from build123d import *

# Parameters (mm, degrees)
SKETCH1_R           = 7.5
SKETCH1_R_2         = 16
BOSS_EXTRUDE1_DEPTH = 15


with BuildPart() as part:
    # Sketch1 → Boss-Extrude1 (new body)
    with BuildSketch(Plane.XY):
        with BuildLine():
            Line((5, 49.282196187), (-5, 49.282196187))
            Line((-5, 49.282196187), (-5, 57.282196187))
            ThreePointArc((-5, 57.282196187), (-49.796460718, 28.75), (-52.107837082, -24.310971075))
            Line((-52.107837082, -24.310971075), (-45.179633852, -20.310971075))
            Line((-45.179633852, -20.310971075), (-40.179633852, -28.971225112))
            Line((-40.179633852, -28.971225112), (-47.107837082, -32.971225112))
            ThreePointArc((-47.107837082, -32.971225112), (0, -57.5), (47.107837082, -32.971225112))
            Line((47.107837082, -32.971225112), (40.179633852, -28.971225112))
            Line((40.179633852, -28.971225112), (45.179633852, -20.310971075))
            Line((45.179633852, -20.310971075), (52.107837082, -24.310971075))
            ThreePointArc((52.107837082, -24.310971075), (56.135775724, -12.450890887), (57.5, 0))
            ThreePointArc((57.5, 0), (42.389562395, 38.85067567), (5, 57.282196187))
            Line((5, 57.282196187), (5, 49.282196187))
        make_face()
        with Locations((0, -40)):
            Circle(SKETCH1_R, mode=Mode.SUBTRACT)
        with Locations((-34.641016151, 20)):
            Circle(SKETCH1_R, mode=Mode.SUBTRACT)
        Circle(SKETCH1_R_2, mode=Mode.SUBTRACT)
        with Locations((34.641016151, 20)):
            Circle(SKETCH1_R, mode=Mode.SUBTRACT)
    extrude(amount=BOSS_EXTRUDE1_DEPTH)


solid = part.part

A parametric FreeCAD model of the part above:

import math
import FreeCAD as App
import Part
import Sketcher
Q = App.Units.Quantity

doc = App.newDocument("Part")
body = doc.addObject("PartDesign::Body", "Body")

sketch1 = body.newObject("Sketcher::SketchObject", "Sketch")
sketch1.AttachmentSupport = (doc.getObject("XY_Plane"), [""])
sketch1.MapMode = "FlatFace"
sketch1.addGeometry([
    Part.LineSegment(App.Vector(5, 49.282196, 0), App.Vector(-5, 49.282196, 0)),
    Part.LineSegment(App.Vector(-5, 49.282196, 0), App.Vector(-5, 57.282196, 0)),
    Part.ArcOfCircle(Part.Circle(App.Vector(0, 0, 0), App.Vector(0, 0, 1), 57.5), math.radians(94.988542), math.radians(205.011458)),
    Part.LineSegment(App.Vector(-52.107837, -24.310971, 0), App.Vector(-45.179634, -20.310971, 0)),
    Part.LineSegment(App.Vector(-45.179634, -20.310971, 0), App.Vector(-40.179634, -28.971225, 0)),
    Part.LineSegment(App.Vector(-40.179634, -28.971225, 0), App.Vector(-47.107837, -32.971225, 0)),
    Part.ArcOfCircle(Part.Circle(App.Vector(0, 0, 0), App.Vector(0, 0, 1), 57.5), math.radians(-145.011458), math.radians(-34.988542)),
    Part.LineSegment(App.Vector(47.107837, -32.971225, 0), App.Vector(40.179634, -28.971225, 0)),
    Part.LineSegment(App.Vector(40.179634, -28.971225, 0), App.Vector(45.179634, -20.310971, 0)),
    Part.LineSegment(App.Vector(45.179634, -20.310971, 0), App.Vector(52.107837, -24.310971, 0)),
    Part.ArcOfCircle(Part.Circle(App.Vector(0, 0, 0), App.Vector(0, 0, 1), 57.5), math.radians(-25.011458), math.radians(0)),
    Part.ArcOfCircle(Part.Circle(App.Vector(0, 0, 0), App.Vector(0, 0, 1), 57.5), math.radians(0), math.radians(85.011458)),
    Part.LineSegment(App.Vector(5, 57.282196, 0), App.Vector(5, 49.282196, 0)),
    Part.Circle(App.Vector(0, -40, 0), App.Vector(0, 0, 1), 7.5),
    Part.Circle(App.Vector(-34.641016, 20, 0), App.Vector(0, 0, 1), 7.5),
    Part.Circle(App.Vector(0, 0, 0), App.Vector(0, 0, 1), 16),
    Part.Circle(App.Vector(34.641016, 20, 0), App.Vector(0, 0, 1), 7.5),
], False)
sketch1.addConstraint([
    Sketcher.Constraint("Coincident", 0, 2, 1, 1),
    Sketcher.Constraint("Coincident", 1, 2, 2, 1),
    Sketcher.Constraint("Coincident", 2, 2, 3, 1),
    Sketcher.Constraint("Coincident", 3, 2, 4, 1),
    Sketcher.Constraint("Coincident", 4, 2, 5, 1),
    Sketcher.Constraint("Coincident", 5, 2, 6, 1),
    Sketcher.Constraint("Coincident", 6, 2, 7, 1),
    Sketcher.Constraint("Coincident", 7, 2, 8, 1),
    Sketcher.Constraint("Coincident", 8, 2, 9, 1),
    Sketcher.Constraint("Coincident", 9, 2, 10, 1),
    Sketcher.Constraint("Tangent", 10, 2, 11, 1),
    Sketcher.Constraint("Coincident", 11, 2, 12, 1),
    Sketcher.Constraint("Coincident", 12, 2, 0, 1),
    Sketcher.Constraint("Horizontal", 0),
    Sketcher.Constraint("Vertical", 1),
    Sketcher.Constraint("Vertical", 12),
    Sketcher.Constraint("Coincident", 2, 3, -1, 1),
    Sketcher.Constraint("Coincident", 6, 3, -1, 1),
    Sketcher.Constraint("Coincident", 10, 3, -1, 1),
    Sketcher.Constraint("Coincident", 15, 3, -1, 1),
    Sketcher.Constraint("Equal", 2, 6),
    Sketcher.Constraint("Equal", 6, 10),
    Sketcher.Constraint("Equal", 10, 11),
    Sketcher.Constraint("Equal", 13, 14),
    Sketcher.Constraint("Equal", 14, 16),
    Sketcher.Constraint("Symmetric", 14, 3, 16, 3, -2),
    Sketcher.Constraint("Symmetric", 4, 2, 7, 2, -2),
    Sketcher.Constraint("Symmetric", 3, 2, 8, 2, -2),
    Sketcher.Constraint("PointOnObject", 13, 3, -2),
    Sketcher.Constraint("PointOnObject", 10, 2, -1),
    Sketcher.Constraint("Perpendicular", 3, 4),
    Sketcher.Constraint("Perpendicular", 4, 5),
    Sketcher.Constraint("Perpendicular", 7, 8),
    Sketcher.Constraint("Perpendicular", 8, 9),
    Sketcher.Constraint("Horizontal", 1, 2, 11, 2),
    Sketcher.Constraint("Equal", 3, 5),
    Sketcher.Constraint("Diameter", 13, Q("15 mm")),
    Sketcher.Constraint("Diameter", 15, Q("32 mm")),
    Sketcher.Constraint("Radius", 2, Q("57.5 mm")),
    Sketcher.Constraint("DistanceX", 0, 2, 0, 1, Q("10 mm")),
    Sketcher.Constraint("DistanceY", 1, 1, 1, 2, Q("8 mm")),
    Sketcher.Constraint("Angle", 3, Q("30 deg")),
    Sketcher.Constraint("Distance", 3, Q("8 mm")),
    Sketcher.Constraint("Distance", 4, Q("10 mm")),
    Sketcher.Constraint("DistanceY", 13, 3, -1, 1, Q("40 mm")),
    Sketcher.Constraint("DistanceY", -1, 1, 14, 3, Q("20 mm")),
    Sketcher.Constraint("DistanceX", 2, 2, 14, 3, Q("17.466821 mm")),
])
pad1 = body.newObject("PartDesign::Pad", "Pad")
pad1.Profile = sketch1
pad1.Length = 15

doc.recompute()
